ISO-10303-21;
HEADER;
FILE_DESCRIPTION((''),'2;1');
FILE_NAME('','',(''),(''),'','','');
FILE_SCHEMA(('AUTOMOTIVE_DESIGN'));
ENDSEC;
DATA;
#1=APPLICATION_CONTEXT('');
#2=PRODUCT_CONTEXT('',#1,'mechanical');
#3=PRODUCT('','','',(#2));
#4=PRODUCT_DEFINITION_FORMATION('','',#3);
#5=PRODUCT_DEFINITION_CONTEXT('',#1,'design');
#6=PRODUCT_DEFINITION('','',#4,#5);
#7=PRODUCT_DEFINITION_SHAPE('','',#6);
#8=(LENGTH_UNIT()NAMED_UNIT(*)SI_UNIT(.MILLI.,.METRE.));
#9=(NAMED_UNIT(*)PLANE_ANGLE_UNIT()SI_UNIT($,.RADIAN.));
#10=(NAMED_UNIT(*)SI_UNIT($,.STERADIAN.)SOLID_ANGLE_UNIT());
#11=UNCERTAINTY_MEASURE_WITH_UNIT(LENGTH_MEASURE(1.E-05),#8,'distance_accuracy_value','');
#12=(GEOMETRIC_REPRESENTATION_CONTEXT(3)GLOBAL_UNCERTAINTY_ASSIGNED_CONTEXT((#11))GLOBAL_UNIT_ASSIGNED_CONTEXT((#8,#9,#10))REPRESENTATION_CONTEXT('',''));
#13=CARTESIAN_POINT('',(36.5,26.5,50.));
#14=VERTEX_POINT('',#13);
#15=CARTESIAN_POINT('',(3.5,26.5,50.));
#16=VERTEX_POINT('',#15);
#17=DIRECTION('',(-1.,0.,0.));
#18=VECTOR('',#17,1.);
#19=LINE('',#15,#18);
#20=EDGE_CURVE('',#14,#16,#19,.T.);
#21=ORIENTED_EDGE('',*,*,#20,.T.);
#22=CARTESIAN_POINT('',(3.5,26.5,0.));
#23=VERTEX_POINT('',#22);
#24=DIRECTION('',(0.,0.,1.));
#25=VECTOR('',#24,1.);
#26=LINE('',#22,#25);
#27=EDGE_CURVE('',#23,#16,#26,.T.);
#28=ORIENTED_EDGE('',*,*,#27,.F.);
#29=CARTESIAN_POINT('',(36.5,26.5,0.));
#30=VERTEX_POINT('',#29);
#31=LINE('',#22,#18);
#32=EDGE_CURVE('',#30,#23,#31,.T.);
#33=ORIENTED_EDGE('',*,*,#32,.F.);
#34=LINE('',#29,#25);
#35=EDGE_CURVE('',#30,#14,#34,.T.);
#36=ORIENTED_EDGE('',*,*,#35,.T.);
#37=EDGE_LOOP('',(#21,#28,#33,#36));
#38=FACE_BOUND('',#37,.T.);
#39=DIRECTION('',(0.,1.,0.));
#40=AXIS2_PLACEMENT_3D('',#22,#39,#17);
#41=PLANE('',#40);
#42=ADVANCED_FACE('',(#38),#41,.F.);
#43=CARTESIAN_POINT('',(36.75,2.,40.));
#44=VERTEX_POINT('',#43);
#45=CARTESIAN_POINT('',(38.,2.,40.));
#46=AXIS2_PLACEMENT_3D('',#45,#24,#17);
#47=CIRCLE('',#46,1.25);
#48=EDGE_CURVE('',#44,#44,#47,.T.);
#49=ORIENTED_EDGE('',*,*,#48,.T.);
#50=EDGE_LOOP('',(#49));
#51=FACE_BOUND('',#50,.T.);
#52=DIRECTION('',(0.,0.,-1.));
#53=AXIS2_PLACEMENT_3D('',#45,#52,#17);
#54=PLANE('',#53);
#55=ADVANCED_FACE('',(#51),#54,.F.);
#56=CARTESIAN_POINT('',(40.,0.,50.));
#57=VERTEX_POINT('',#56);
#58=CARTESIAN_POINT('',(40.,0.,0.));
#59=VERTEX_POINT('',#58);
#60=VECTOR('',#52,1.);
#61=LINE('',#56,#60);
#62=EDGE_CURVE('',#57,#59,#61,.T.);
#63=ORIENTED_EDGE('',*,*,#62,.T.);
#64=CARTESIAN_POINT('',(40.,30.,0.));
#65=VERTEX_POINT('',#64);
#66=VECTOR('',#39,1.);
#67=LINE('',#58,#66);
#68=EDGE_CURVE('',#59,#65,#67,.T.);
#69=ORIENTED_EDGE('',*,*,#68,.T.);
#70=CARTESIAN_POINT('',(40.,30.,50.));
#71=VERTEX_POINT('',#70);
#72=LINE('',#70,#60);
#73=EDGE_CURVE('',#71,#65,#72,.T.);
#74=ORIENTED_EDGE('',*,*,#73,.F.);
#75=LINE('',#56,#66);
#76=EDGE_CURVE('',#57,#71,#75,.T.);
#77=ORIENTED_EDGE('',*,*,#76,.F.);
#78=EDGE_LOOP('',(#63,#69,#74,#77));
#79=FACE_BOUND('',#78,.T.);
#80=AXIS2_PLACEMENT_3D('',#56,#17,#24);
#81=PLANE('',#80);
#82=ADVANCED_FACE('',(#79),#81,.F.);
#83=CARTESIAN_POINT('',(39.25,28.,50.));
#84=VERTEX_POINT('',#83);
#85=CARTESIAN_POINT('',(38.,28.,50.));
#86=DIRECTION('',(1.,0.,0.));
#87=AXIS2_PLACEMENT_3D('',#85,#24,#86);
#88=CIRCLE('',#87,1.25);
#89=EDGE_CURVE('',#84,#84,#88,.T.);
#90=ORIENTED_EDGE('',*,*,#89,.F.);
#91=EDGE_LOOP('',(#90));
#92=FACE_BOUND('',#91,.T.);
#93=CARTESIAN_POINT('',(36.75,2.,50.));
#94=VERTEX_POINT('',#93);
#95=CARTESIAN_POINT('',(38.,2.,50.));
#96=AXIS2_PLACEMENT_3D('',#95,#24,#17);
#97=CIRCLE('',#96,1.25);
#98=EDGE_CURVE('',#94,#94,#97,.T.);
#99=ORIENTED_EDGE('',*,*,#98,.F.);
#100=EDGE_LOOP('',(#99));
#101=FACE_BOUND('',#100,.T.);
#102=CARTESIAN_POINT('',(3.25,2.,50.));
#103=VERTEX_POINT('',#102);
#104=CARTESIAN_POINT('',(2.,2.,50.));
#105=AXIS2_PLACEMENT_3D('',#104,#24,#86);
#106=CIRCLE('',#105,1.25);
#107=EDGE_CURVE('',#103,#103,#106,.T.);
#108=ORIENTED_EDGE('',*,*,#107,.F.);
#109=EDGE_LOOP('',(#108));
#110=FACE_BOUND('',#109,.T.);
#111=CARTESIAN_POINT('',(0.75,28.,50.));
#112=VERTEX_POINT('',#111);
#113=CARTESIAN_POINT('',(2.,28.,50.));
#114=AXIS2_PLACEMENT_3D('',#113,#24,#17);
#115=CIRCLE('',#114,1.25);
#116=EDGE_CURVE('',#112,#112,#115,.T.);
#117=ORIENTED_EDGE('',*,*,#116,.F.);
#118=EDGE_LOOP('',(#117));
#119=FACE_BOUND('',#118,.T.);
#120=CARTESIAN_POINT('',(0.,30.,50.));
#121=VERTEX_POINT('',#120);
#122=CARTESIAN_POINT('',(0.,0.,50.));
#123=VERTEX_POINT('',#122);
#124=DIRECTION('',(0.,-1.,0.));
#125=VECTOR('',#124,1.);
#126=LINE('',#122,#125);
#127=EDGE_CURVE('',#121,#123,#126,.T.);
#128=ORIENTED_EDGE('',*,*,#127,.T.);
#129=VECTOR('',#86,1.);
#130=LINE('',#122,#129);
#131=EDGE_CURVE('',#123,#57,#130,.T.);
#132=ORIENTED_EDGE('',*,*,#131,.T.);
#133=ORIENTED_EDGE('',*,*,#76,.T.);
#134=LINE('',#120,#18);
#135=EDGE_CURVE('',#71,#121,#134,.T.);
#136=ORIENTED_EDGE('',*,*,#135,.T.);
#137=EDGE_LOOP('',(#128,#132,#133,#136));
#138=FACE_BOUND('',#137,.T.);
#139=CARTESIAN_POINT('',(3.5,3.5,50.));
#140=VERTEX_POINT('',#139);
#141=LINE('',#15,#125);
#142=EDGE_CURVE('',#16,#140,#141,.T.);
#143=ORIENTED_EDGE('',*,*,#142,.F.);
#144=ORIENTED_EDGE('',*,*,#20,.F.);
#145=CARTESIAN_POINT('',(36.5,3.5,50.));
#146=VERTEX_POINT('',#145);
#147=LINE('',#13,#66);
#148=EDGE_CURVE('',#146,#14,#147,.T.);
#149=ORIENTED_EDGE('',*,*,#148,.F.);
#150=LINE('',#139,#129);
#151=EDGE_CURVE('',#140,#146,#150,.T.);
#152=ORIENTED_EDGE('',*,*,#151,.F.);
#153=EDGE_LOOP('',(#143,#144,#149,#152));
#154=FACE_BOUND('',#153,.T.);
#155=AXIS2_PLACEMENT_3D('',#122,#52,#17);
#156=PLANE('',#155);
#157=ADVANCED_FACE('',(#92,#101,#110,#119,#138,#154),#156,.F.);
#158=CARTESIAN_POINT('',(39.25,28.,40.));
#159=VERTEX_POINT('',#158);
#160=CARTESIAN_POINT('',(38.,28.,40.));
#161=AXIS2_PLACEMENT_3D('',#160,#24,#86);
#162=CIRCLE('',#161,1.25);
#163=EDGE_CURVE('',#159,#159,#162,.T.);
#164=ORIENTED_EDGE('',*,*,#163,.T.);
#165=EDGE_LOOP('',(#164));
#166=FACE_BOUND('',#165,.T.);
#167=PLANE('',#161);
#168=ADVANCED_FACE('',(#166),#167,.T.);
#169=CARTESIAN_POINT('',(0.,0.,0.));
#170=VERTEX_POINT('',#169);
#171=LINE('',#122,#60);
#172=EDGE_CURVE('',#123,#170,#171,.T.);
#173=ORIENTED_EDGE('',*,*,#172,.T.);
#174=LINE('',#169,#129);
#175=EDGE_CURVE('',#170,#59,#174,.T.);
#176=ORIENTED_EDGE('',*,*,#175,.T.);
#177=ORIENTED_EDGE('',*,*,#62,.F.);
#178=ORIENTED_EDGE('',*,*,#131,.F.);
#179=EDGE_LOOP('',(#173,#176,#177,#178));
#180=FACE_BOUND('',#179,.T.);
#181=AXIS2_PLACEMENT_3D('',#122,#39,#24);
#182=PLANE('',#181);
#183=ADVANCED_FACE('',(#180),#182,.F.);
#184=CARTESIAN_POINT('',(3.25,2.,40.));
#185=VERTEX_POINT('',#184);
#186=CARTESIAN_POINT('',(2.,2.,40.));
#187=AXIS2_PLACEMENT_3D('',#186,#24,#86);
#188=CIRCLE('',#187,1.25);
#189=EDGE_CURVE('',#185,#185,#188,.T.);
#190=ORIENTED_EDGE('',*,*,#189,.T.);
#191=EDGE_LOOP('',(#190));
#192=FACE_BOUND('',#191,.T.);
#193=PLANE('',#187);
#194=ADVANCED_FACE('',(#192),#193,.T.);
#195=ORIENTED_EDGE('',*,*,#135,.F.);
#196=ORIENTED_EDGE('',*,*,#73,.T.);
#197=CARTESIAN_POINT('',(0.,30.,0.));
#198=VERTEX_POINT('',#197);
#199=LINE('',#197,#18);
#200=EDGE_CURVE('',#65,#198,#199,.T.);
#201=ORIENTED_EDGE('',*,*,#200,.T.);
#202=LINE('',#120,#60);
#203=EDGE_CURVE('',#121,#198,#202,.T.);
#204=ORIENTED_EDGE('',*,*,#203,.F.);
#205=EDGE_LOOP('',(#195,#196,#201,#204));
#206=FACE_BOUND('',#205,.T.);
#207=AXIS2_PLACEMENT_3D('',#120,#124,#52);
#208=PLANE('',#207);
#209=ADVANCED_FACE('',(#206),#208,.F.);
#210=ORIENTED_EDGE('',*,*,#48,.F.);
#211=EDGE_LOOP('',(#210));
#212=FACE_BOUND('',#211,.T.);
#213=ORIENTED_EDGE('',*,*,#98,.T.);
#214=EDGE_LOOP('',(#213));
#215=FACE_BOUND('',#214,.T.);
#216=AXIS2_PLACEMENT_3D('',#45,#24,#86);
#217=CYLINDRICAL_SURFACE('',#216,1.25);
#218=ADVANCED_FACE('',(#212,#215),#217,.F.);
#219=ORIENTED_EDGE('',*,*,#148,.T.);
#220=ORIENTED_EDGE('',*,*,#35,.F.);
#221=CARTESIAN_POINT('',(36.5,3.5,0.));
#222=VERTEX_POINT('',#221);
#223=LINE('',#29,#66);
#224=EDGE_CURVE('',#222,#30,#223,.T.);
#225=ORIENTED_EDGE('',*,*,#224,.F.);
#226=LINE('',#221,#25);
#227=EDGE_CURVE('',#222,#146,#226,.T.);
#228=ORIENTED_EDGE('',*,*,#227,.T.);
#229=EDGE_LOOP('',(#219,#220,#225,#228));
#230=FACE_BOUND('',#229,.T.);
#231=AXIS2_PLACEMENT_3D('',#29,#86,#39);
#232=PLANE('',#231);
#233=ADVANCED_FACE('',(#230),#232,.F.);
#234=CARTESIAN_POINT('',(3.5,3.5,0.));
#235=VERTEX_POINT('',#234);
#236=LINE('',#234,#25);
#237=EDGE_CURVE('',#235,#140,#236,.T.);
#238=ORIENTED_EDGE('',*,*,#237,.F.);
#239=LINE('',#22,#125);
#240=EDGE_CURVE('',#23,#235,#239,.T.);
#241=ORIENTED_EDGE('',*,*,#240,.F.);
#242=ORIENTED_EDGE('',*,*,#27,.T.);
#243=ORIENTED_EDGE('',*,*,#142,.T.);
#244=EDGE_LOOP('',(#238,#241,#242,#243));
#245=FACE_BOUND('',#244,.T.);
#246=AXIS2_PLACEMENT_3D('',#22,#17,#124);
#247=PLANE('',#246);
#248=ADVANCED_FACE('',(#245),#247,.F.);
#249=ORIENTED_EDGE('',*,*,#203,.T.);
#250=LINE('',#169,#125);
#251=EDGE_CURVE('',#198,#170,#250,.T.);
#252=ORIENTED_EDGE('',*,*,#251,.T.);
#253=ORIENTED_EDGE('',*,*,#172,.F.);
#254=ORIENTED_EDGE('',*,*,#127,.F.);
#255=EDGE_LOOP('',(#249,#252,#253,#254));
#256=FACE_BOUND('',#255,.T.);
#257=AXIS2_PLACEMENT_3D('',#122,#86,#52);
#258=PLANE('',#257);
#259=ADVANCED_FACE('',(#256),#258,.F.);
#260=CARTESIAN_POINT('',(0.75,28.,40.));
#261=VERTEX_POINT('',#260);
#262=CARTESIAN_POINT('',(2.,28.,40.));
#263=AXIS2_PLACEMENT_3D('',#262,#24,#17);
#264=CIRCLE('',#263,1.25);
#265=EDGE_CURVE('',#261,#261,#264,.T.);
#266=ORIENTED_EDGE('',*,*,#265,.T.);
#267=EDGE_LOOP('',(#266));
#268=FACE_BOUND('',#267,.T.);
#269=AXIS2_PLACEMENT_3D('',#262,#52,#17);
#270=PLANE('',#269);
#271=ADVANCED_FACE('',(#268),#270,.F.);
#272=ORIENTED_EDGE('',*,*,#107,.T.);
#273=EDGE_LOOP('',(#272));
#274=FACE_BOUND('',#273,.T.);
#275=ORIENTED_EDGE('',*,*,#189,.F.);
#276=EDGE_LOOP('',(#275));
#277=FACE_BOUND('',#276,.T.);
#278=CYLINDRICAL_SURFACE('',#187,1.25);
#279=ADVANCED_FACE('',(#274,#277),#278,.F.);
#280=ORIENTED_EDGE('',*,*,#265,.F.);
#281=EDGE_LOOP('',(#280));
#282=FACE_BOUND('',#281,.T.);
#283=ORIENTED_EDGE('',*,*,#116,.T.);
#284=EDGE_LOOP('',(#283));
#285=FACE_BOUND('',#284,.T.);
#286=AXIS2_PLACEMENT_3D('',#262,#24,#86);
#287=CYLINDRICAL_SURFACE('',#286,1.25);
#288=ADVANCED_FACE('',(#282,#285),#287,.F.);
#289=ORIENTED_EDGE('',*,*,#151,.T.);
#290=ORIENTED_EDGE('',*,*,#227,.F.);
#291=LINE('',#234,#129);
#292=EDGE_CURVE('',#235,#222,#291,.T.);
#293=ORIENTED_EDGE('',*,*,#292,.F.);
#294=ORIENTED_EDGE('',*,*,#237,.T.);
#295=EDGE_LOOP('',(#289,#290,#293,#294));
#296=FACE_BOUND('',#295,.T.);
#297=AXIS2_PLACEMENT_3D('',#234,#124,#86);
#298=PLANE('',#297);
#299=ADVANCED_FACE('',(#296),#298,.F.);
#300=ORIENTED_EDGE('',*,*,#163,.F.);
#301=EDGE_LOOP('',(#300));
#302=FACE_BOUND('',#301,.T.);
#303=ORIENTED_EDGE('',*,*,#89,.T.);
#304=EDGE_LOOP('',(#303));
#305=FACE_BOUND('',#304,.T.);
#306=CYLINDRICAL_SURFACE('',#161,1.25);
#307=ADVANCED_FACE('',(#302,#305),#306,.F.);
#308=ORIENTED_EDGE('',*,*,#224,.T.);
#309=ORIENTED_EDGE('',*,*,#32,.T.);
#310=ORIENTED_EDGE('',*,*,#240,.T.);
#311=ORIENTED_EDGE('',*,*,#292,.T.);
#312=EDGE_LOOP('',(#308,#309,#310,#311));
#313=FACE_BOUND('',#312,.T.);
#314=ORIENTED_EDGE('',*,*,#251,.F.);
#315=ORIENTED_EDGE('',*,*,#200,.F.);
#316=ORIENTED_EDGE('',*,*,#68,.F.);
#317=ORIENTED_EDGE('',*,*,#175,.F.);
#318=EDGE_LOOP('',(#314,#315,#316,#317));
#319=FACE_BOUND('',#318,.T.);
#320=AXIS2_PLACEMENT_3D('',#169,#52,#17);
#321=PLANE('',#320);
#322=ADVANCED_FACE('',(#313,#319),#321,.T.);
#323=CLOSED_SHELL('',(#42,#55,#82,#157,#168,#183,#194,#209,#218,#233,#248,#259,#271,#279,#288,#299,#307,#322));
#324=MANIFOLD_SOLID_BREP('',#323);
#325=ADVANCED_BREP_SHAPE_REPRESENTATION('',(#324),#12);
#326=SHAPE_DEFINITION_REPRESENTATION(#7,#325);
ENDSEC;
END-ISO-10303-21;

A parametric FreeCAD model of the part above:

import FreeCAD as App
import Part
import Sketcher
from FreeCAD import Vector
Q = App.Units.Quantity


def add_polygon(sketch, points):
    """Adds a closed chain of lines whose ends are joined by coincident constraints."""
    first, n = sketch.GeometryCount, len(points)
    for a, b in zip(points, points[1:] + points[:1]):
        sketch.addGeometry(Part.LineSegment(App.Vector(*a, 0), App.Vector(*b, 0)), False)
    for i in range(n):
        sketch.addConstraint(Sketcher.Constraint("Coincident", first + i, 2, first + (i + 1) % n, 1))

doc = App.newDocument("Part")
params = doc.addObject("Spreadsheet::Sheet", "Params")
for row, (alias, value) in enumerate([
    ("sketch1_width", "40 mm"),
    ("sketch1_height", "30 mm"),
    ("pad1_length", "50 mm"),
    ("sketch2_width", "33 mm"),
    ("sketch2_height", "23 mm"),
    ("sketch3_diameter", "2.5 mm"),
    ("pocket2_length", "10 mm"),
], start=1):
    params.set(f"A{row}", alias)
    params.set(f"B{row}", "=" + value)
    params.setAlias(f"B{row}", alias)

body = doc.addObject("PartDesign::Body", "Body")

# Sketch on XY plane
sketch1 = body.newObject("Sketcher::SketchObject", "Sketch")
sketch1.AttachmentSupport = (doc.getObject("XY_Plane"), [""])
sketch1.MapMode = "FlatFace"
add_polygon(sketch1, [(0, 30), (0, 0), (40, 0), (40, 30)])  # lines 0-3
sketch1.addConstraint([
    Sketcher.Constraint("Vertical", 0),
    Sketcher.Constraint("Horizontal", 1),
    Sketcher.Constraint("Vertical", 2),
    Sketcher.Constraint("Horizontal", 3),
    Sketcher.Constraint("Coincident", 0, 2, -1, 1),
    Sketcher.Constraint("DistanceX", 1, 1, 1, 2, Q("40 mm")),
    Sketcher.Constraint("DistanceY", 0, 2, 0, 1, Q("30 mm")),
])
sketch1.setExpression("Constraints[9]", "Params.sketch1_width")
sketch1.setExpression("Constraints[10]", "Params.sketch1_height")
pad1 = body.newObject("PartDesign::Pad", "Pad")
pad1.Profile = sketch1
pad1.setExpression("Length", "Params.pad1_length")

# Sketch on XY plane
sketch2 = body.newObject("Sketcher::SketchObject", "Sketch001")
sketch2.AttachmentSupport = (doc.getObject("XY_Plane"), [""])
sketch2.MapMode = "FlatFace"
sketch2.AttachmentOffset = App.Placement(Vector(0, 0, 50), App.Rotation())
add_polygon(sketch2, [(4, 26), (4, 4), (36, 4), (36, 26)])  # lines 0-3
sketch2.addConstraint([
    Sketcher.Constraint("Vertical", 0),
    Sketcher.Constraint("Horizontal", 1),
    Sketcher.Constraint("Vertical", 2),
    Sketcher.Constraint("Horizontal", 3),
    Sketcher.Constraint("DistanceX", 1, 1, 1, 2, Q("33 mm")),
    Sketcher.Constraint("DistanceY", 0, 2, 0, 1, Q("23 mm")),
    Sketcher.Constraint("DistanceX", -1, 1, 0, 2, Q("3.5 mm")),
    Sketcher.Constraint("DistanceY", -1, 1, 0, 2, Q("3.5 mm")),
])
sketch2.setExpression("Constraints[8]", "Params.sketch2_width")
sketch2.setExpression("Constraints[9]", "Params.sketch2_height")
pocket1 = body.newObject("PartDesign::Pocket", "Pocket")
pocket1.Profile = sketch2
pocket1.Type = "ThroughAll"

# Sketch on XY plane
sketch3 = body.newObject("Sketcher::SketchObject", "Sketch002")
sketch3.AttachmentSupport = (doc.getObject("XY_Plane"), [""])
sketch3.MapMode = "FlatFace"
sketch3.AttachmentOffset = App.Placement(Vector(0, 0, 50), App.Rotation())
sketch3.addGeometry([
    Part.Circle(Vector(38, 28, 0), Vector(0, 0, 1), 1.2),
    Part.Circle(Vector(2, 28, 0), Vector(0, 0, 1), 1.2),
    Part.Circle(Vector(2, 2, 0), Vector(0, 0, 1), 1.2),
    Part.Circle(Vector(38, 2, 0), Vector(0, 0, 1), 1.2),
], False)
sketch3.addConstraint([
    Sketcher.Constraint("Equal", 0, 1),
    Sketcher.Constraint("Equal", 1, 2),
    Sketcher.Constraint("Equal", 2, 3),
    Sketcher.Constraint("Horizontal", 0, 3, 1, 3),
    Sketcher.Constraint("Horizontal", 2, 3, 3, 3),
    Sketcher.Constraint("Vertical", 1, 3, 2, 3),
    Sketcher.Constraint("Vertical", 0, 3, 3, 3),
    Sketcher.Constraint("Diameter", 0, Q("2.5 mm")),
    Sketcher.Constraint("DistanceX", -1, 1, 0, 3, Q("38 mm")),
    Sketcher.Constraint("DistanceY", -1, 1, 0, 3, Q("28 mm")),
    Sketcher.Constraint("DistanceX", -1, 1, 1, 3, Q("2 mm")),
    Sketcher.Constraint("DistanceY", -1, 1, 2, 3, Q("2 mm")),
])
sketch3.setExpression("Constraints[7]", "Params.sketch3_diameter")
pocket2 = body.newObject("PartDesign::Pocket", "Pocket001")
pocket2.Profile = sketch3
pocket2.setExpression("Length", "Params.pocket2_length")

doc.recompute()
